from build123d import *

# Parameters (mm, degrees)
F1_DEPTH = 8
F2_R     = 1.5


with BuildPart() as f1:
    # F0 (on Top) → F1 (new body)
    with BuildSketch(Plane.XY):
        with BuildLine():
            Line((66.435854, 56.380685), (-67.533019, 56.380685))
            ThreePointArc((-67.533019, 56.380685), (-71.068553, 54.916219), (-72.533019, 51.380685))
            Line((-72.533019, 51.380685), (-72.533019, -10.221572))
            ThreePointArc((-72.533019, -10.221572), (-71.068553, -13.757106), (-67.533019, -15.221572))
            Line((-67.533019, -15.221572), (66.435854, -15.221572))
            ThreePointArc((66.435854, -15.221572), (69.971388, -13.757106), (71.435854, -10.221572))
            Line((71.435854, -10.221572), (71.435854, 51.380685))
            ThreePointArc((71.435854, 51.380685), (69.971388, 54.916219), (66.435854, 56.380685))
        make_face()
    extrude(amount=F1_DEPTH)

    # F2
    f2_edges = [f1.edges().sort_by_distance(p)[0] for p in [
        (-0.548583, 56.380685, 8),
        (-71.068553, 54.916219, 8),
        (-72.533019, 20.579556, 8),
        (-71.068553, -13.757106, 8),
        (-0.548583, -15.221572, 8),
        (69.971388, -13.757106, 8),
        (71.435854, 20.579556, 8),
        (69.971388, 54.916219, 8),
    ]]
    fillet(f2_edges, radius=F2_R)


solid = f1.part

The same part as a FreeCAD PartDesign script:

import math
import FreeCAD as App
import Part
import Sketcher
from FreeCAD import Vector


def edges_at(feature, points):
    """Names of the edges that pass closest to the given points."""
    edges = feature.Shape.Edges
    near = lambda p: min(range(len(edges)), key=lambda i: edges[i].distToShape(Part.Vertex(*p))[0])
    return sorted({f"Edge{near(p) + 1}" for p in points})

doc = App.newDocument("Part")
body = doc.addObject("PartDesign::Body", "Body")

# Sketch on XY plane
sketch1 = body.newObject("Sketcher::SketchObject", "Sketch")
sketch1.AttachmentSupport = (doc.getObject("XY_Plane"), [""])
sketch1.MapMode = "FlatFace"
sketch1.addGeometry(Part.LineSegment(Vector(66.4, 56.4, 0), Vector(-67.5, 56.4, 0)), False)
sketch1.addGeometry(Part.ArcOfCircle(Part.Circle(Vector(-67.5, 51.4, 0), Vector(0, 0, 1), 5), math.radians(90), math.radians(180)), False)
sketch1.addGeometry(Part.LineSegment(Vector(-72.5, 51.4, 0), Vector(-72.5, -10.2, 0)), False)
sketch1.addGeometry(Part.ArcOfCircle(Part.Circle(Vector(-67.5, -10.2, 0), Vector(0, 0, 1), 5), math.radians(180), math.radians(270)), False)
sketch1.addGeometry(Part.LineSegment(Vector(-67.5, -15.2, 0), Vector(66.4, -15.2, 0)), False)
sketch1.addGeometry(Part.ArcOfCircle(Part.Circle(Vector(66.4, -10.2, 0), Vector(0, 0, 1), 5), math.radians(-90), math.radians(0)), False)
sketch1.addGeometry(Part.LineSegment(Vector(71.4, -10.2, 0), Vector(71.4, 51.4, 0)), False)
sketch1.addGeometry(Part.ArcOfCircle(Part.Circle(Vector(66.4, 51.4, 0), Vector(0, 0, 1), 5), math.radians(0), math.radians(90)), False)
sketch1.addConstraint(Sketcher.Constraint("Tangent", 0, 2, 1, 1))
sketch1.addConstraint(Sketcher.Constraint("Tangent", 1, 2, 2, 1))
sketch1.addConstraint(Sketcher.Constraint("Tangent", 2, 2, 3, 1))
sketch1.addConstraint(Sketcher.Constraint("Tangent", 3, 2, 4, 1))
sketch1.addConstraint(Sketcher.Constraint("Tangent", 4, 2, 5, 1))
sketch1.addConstraint(Sketcher.Constraint("Tangent", 5, 2, 6, 1))
sketch1.addConstraint(Sketcher.Constraint("Tangent", 6, 2, 7, 1))
sketch1.addConstraint(Sketcher.Constraint("Tangent", 7, 2, 0, 1))
sketch1.addConstraint(Sketcher.Constraint("Horizontal", 0))
sketch1.addConstraint(Sketcher.Constraint("Vertical", 2))
sketch1.addConstraint(Sketcher.Constraint("Horizontal", 4))
sketch1.addConstraint(Sketcher.Constraint("Vertical", 6))
sketch1.addConstraint(Sketcher.Constraint("Equal", 1, 3))
sketch1.addConstraint(Sketcher.Constraint("Equal", 3, 5))
sketch1.addConstraint(Sketcher.Constraint("Equal", 5, 7))
sketch1.addConstraint(Sketcher.Constraint("Radius", 1, 5.0))
sketch1.addConstraint(Sketcher.Constraint("DistanceX", 0, 2, 0, 1, 133.968873))
sketch1.addConstraint(Sketcher.Constraint("DistanceY", 2, 2, 2, 1, 61.602257))
sketch1.addConstraint(Sketcher.Constraint("DistanceX", 1, 3, -1, 1, 67.533019))
sketch1.addConstraint(Sketcher.Constraint("DistanceY", 3, 2, -1, 1, 15.221572))
pad1 = body.newObject("PartDesign::Pad", "Pad")
pad1.Profile = sketch1
pad1.Length = 8
doc.recompute()

fillet = body.newObject("PartDesign::Fillet", "Fillet")
fillet.Base = (pad1, edges_at(pad1, [
    (-0.549, 56.381, 8),
    (-71.069, 54.916, 8),
    (-72.533, 20.58, 8),
    (-71.069, -13.757, 8),
    (-0.549, -15.222, 8),
    (69.971, -13.757, 8),
    (71.436, 20.58, 8),
    (69.971, 54.916, 8),
]))
fillet.Radius = 1.5

doc.recompute()
